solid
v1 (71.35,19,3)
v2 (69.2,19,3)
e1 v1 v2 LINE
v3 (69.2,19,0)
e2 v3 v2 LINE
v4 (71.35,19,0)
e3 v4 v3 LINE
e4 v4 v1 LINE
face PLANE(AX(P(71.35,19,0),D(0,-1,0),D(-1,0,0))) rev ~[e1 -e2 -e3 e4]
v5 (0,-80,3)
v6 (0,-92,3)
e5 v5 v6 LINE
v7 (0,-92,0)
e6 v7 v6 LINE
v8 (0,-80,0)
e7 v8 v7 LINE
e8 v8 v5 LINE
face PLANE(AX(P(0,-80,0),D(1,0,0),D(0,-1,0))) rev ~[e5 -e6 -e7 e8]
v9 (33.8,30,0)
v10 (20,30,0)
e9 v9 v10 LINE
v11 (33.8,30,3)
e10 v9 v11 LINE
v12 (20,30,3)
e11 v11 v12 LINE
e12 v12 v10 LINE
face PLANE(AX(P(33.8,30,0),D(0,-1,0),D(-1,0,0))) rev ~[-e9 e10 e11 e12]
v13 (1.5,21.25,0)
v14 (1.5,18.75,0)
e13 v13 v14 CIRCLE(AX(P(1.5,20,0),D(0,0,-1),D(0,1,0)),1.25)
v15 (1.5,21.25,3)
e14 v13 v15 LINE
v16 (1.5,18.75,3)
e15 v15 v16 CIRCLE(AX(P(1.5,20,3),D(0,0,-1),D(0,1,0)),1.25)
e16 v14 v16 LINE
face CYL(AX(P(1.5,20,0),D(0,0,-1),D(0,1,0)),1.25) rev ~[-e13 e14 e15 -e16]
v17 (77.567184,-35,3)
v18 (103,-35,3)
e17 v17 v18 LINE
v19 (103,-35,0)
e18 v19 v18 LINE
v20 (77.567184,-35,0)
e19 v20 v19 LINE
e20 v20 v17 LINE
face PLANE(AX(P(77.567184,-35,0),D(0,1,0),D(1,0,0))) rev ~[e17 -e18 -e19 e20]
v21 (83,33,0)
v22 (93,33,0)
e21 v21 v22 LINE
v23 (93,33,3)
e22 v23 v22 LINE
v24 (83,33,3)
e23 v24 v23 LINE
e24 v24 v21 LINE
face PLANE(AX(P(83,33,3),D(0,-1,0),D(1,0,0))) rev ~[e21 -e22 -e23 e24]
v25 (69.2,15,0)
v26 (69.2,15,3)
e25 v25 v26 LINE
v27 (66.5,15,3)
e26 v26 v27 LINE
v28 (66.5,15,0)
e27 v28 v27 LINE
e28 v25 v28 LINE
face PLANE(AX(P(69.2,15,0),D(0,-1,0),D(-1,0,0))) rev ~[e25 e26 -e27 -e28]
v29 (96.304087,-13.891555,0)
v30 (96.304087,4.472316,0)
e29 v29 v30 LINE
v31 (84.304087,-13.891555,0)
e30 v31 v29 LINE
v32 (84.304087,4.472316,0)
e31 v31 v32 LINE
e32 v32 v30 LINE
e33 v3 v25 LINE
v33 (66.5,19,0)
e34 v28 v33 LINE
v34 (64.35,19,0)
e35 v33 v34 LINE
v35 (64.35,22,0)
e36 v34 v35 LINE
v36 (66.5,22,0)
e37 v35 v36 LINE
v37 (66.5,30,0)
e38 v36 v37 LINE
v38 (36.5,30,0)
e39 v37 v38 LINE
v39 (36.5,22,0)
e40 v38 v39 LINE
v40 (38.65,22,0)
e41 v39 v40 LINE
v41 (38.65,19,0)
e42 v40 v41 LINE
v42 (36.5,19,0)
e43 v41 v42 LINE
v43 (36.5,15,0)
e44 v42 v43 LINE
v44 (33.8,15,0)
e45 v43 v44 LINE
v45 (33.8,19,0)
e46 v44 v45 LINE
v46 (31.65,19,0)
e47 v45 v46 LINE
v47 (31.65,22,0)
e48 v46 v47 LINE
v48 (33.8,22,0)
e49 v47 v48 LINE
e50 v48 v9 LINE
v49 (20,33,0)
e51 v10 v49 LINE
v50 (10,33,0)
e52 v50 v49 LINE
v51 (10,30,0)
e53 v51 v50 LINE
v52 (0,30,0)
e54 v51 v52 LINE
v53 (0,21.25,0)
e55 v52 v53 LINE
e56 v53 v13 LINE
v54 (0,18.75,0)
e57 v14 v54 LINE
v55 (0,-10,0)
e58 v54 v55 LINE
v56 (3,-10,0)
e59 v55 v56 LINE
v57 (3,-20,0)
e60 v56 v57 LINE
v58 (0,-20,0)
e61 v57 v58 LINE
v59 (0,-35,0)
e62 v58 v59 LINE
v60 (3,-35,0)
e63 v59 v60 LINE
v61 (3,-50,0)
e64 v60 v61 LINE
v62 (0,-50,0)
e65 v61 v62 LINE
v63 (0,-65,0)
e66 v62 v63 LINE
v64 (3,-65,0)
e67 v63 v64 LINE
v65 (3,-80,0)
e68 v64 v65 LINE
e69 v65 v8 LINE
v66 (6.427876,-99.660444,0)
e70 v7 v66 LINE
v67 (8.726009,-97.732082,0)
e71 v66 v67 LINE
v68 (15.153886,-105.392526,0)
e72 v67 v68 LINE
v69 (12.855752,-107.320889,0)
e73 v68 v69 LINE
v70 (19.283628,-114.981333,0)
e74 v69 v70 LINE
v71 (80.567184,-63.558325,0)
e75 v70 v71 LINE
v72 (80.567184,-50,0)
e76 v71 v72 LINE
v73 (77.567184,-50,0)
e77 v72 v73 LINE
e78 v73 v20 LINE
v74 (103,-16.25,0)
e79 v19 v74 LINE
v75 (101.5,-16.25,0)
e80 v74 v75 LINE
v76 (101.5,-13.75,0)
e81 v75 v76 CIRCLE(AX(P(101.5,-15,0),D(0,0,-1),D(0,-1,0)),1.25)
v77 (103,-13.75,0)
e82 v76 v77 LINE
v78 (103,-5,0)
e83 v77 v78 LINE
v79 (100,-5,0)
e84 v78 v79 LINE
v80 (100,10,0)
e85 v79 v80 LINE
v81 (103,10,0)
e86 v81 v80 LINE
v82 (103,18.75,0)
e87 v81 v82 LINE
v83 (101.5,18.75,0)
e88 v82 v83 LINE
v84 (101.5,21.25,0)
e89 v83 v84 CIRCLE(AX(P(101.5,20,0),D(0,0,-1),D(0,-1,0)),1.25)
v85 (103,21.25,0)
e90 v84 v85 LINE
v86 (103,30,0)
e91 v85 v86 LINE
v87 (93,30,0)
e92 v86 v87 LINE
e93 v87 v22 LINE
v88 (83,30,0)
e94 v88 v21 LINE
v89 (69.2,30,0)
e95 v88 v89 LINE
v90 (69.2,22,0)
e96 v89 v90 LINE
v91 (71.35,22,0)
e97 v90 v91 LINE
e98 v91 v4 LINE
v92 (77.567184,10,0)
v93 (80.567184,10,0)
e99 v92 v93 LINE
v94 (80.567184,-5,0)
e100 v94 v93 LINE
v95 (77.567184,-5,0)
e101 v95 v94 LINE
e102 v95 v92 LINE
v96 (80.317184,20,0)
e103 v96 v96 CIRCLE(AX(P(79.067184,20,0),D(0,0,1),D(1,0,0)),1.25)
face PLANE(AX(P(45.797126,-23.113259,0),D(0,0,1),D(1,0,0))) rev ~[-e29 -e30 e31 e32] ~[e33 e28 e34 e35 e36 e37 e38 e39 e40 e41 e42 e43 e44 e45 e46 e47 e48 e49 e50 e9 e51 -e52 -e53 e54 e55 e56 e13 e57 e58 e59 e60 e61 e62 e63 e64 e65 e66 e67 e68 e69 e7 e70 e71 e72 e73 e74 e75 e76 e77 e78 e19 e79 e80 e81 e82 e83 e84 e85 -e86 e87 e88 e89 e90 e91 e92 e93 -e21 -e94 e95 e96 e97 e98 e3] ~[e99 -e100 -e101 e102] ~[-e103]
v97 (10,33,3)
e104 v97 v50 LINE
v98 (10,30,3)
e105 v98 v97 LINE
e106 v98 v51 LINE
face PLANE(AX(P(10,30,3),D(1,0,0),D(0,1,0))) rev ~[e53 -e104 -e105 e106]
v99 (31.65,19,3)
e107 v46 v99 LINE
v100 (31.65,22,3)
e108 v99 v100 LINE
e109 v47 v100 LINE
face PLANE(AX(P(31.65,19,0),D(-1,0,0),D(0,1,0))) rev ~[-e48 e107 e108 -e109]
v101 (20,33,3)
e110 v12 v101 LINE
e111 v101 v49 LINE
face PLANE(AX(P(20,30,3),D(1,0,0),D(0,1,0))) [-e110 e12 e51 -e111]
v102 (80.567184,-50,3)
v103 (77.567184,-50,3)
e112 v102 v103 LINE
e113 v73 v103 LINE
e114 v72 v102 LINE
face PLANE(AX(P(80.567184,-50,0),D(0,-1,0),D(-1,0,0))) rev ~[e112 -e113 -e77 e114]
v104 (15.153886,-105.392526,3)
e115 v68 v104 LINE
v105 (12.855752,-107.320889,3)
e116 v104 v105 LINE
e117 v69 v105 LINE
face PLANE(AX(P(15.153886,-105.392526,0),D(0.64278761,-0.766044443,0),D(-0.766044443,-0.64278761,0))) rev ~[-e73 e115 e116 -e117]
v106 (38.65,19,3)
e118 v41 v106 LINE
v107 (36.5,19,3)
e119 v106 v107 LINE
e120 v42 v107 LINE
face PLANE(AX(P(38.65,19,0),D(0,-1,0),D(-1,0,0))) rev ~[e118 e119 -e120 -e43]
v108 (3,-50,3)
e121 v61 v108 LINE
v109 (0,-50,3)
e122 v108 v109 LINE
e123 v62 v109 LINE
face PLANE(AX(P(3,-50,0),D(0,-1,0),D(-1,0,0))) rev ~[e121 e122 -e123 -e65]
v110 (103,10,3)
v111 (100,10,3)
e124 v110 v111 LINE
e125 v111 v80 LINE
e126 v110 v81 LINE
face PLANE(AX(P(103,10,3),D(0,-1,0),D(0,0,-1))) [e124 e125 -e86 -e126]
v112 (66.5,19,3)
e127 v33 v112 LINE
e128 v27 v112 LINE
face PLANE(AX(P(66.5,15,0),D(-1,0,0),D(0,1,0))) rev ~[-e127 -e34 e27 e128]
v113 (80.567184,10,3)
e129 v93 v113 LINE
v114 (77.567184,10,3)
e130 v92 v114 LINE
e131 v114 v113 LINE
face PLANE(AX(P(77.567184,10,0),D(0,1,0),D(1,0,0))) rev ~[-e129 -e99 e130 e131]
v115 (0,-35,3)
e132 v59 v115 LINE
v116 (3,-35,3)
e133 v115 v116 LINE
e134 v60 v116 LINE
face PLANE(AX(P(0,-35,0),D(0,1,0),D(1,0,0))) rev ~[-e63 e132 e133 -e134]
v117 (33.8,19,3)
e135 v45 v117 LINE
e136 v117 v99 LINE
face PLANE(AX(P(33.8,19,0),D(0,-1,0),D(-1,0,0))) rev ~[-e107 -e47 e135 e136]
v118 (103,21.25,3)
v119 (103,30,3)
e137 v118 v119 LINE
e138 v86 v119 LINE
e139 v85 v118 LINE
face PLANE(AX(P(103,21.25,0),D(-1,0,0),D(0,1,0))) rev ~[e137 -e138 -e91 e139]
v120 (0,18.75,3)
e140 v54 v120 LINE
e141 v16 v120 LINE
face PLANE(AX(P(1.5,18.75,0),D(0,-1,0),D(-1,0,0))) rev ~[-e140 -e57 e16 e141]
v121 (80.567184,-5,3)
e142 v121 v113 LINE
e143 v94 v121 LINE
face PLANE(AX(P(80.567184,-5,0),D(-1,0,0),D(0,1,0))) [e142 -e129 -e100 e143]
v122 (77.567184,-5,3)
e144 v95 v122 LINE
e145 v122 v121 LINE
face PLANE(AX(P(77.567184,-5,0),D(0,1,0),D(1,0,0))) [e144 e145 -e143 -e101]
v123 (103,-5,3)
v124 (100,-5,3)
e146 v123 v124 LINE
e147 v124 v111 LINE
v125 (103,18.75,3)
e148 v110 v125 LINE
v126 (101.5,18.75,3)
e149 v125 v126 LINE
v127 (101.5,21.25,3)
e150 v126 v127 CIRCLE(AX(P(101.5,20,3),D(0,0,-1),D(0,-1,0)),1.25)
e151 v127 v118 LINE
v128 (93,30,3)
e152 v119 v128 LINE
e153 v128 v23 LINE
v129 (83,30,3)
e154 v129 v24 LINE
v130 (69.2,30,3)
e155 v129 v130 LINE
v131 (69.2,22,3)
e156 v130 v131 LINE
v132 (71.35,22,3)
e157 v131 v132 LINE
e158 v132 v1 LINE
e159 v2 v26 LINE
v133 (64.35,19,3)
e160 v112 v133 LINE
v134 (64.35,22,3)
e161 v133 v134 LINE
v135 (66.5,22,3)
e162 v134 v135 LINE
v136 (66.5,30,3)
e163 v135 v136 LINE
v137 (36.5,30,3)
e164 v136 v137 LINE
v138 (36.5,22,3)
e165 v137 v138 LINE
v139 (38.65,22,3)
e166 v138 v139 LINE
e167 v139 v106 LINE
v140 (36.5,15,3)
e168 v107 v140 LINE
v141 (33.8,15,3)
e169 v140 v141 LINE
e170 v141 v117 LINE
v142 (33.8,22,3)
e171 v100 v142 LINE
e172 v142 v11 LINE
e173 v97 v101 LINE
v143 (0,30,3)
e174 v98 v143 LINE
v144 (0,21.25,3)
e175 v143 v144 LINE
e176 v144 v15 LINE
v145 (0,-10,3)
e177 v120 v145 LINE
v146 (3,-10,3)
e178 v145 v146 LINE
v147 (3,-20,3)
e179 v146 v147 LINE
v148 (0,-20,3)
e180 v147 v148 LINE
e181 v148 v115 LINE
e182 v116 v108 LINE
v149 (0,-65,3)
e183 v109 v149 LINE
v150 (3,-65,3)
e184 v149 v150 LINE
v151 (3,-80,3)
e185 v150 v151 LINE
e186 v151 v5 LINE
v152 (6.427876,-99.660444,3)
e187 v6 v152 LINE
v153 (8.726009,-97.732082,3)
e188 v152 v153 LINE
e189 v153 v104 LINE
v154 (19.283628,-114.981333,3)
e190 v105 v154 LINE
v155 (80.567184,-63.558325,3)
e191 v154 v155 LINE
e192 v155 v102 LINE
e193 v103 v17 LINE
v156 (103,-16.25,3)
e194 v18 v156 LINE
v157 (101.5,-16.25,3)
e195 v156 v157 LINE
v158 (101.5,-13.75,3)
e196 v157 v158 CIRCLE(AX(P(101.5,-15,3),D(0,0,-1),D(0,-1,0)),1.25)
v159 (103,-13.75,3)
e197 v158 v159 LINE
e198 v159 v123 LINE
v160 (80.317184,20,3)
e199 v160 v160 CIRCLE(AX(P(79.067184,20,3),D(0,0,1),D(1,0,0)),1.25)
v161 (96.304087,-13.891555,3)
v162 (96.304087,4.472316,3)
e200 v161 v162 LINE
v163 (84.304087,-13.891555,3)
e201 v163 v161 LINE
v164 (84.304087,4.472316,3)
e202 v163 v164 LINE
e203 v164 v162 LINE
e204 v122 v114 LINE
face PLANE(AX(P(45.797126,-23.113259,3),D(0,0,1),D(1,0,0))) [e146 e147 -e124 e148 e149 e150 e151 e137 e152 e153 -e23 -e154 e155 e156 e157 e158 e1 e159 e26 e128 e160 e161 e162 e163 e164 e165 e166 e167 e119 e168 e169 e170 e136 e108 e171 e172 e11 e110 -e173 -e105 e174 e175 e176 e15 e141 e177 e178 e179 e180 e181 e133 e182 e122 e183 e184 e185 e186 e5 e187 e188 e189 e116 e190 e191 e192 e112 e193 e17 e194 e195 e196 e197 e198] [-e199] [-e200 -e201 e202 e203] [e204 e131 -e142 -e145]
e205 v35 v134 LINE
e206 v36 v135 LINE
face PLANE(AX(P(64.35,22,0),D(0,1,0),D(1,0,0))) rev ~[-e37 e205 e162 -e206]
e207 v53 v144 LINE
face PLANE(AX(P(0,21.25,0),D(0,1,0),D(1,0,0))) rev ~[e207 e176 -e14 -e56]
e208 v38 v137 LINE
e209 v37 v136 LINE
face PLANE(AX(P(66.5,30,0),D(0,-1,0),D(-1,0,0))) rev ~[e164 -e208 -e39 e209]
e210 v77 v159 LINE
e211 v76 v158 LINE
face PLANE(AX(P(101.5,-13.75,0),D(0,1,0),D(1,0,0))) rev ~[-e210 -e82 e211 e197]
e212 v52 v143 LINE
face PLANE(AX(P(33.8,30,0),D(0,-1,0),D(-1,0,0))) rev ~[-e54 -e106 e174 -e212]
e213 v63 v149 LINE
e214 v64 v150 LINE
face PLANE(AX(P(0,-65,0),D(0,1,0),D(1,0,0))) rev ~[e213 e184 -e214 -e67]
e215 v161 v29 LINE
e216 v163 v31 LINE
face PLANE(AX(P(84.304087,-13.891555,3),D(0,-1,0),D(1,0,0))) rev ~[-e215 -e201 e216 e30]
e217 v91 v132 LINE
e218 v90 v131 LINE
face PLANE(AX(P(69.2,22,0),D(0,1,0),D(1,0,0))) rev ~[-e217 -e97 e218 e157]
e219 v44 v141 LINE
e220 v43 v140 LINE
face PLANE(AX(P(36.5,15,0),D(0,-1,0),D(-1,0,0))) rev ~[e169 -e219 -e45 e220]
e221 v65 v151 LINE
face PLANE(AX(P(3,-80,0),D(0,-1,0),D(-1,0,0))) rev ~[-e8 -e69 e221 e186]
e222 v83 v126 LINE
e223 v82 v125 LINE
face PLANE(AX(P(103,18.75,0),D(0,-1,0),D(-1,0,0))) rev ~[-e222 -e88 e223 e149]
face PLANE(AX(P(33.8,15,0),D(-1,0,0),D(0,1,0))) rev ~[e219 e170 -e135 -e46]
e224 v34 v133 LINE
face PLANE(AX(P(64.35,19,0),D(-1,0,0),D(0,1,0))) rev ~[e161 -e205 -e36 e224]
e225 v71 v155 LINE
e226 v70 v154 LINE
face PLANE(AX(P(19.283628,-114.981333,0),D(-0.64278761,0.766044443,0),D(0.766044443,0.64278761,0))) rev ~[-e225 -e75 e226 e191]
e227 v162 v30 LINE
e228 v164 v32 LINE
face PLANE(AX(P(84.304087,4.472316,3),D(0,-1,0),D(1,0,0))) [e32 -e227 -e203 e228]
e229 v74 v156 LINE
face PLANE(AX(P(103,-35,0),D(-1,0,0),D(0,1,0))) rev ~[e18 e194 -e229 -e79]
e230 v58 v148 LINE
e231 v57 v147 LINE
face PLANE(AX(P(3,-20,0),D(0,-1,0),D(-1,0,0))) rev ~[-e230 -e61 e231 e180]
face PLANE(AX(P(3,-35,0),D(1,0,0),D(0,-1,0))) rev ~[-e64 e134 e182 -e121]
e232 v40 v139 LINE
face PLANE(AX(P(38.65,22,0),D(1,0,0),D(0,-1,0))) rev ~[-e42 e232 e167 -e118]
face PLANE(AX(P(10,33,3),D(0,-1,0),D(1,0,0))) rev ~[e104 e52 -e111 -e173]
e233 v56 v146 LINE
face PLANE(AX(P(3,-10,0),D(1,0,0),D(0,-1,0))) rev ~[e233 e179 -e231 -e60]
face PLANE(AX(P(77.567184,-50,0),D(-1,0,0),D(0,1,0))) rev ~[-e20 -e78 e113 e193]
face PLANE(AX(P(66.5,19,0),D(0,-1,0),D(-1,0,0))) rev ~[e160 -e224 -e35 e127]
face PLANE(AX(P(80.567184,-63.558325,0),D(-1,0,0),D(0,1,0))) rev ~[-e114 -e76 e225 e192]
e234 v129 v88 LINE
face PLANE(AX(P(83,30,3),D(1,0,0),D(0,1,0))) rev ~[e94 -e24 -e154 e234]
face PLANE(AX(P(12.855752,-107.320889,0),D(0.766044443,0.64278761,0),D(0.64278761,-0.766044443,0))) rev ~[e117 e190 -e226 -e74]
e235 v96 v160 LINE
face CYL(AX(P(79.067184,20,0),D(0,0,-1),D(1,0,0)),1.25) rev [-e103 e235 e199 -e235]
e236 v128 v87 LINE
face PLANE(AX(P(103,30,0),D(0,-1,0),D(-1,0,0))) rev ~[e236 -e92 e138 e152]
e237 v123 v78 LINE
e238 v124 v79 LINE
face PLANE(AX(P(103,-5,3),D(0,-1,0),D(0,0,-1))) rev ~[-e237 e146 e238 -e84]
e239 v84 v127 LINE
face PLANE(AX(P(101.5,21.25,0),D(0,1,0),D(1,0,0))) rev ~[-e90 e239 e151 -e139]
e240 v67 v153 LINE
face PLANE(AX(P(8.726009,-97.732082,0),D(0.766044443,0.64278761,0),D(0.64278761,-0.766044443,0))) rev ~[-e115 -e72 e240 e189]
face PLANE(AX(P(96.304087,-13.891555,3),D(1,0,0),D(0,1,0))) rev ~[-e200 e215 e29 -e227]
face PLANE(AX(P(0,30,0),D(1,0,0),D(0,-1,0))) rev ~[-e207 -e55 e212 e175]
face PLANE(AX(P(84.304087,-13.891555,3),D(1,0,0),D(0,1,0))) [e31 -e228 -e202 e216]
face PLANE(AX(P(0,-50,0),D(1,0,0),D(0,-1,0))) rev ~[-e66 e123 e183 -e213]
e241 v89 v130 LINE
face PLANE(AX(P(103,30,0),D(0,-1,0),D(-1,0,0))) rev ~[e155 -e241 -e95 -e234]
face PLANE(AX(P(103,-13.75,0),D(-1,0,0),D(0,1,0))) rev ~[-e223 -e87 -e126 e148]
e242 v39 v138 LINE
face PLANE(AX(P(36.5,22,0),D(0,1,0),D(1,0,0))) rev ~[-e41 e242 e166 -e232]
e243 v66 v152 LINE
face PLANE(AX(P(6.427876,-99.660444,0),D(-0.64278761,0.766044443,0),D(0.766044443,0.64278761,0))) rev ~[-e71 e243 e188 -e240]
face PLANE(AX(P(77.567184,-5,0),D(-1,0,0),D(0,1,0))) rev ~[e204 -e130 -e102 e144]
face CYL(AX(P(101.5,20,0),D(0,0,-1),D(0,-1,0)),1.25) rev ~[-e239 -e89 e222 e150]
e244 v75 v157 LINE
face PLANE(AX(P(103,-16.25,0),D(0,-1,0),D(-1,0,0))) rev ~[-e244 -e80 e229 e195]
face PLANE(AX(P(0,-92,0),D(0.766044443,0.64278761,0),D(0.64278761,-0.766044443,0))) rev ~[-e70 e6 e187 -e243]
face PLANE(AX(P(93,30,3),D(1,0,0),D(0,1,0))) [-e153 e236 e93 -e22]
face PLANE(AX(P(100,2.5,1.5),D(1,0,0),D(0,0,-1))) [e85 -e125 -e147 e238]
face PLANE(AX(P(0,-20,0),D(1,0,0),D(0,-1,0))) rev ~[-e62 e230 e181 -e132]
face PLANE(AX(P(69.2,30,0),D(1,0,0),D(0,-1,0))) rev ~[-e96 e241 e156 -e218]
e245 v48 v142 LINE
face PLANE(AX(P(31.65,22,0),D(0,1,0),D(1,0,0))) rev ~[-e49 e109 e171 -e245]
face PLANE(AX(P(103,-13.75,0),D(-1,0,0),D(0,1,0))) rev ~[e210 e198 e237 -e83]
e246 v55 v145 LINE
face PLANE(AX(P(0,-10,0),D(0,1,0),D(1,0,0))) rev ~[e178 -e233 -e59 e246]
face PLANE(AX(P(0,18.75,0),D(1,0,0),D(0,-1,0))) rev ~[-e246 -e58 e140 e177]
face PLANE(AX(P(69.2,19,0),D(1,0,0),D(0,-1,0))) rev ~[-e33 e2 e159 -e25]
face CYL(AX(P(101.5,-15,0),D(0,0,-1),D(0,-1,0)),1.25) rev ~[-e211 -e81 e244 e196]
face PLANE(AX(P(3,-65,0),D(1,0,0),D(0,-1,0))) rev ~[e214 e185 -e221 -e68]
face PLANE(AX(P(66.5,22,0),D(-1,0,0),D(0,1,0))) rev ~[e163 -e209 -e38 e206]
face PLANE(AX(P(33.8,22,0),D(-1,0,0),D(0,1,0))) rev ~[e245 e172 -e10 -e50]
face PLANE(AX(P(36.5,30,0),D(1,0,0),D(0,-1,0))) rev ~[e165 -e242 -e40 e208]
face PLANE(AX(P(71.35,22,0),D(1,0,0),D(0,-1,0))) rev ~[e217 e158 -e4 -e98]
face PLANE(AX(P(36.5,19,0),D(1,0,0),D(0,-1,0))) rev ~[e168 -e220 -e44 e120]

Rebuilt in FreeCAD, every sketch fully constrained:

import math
import FreeCAD as App
import Part
import Sketcher
from FreeCAD import Vector
Q = App.Units.Quantity


def add_polygon(sketch, points):
    """Adds a closed chain of lines whose ends are joined by coincident constraints."""
    first, n = sketch.GeometryCount, len(points)
    for a, b in zip(points, points[1:] + points[:1]):
        sketch.addGeometry(Part.LineSegment(App.Vector(*a, 0), App.Vector(*b, 0)), False)
    for i in range(n):
        sketch.addConstraint(Sketcher.Constraint("Coincident", first + i, 2, first + (i + 1) % n, 1))

doc = App.newDocument("Part")
body = doc.addObject("PartDesign::Body", "Body")

# Sketch on XY plane
sketch1 = doc.addObject("Sketcher::SketchObject", "Sketch")
body.addObject(sketch1)
sketch1.AttachmentSupport = (doc.XY_Plane, [""])
sketch1.MapMode = "FlatFace"
sketch1.addGeometry(Part.LineSegment(Vector(103, 21.25, 0), Vector(103, 30, 0)), False)  # 0
sketch1.addGeometry(Part.LineSegment(Vector(103, 30, 0), Vector(69.2, 30, 0)), False)  # 1
sketch1.addGeometry(Part.LineSegment(Vector(69.2, 30, 0), Vector(69.2, 22, 0)), False)  # 2
sketch1.addGeometry(Part.LineSegment(Vector(69.2, 22, 0), Vector(71.35, 22, 0)), False)  # 3
sketch1.addGeometry(Part.LineSegment(Vector(71.35, 22, 0), Vector(71.35, 19, 0)), False)  # 4
sketch1.addGeometry(Part.LineSegment(Vector(71.35, 19, 0), Vector(69.2, 19, 0)), False)  # 5
sketch1.addGeometry(Part.LineSegment(Vector(69.2, 19, 0), Vector(69.2, 15, 0)), False)  # 6
sketch1.addGeometry(Part.LineSegment(Vector(69.2, 15, 0), Vector(66.5, 15, 0)), False)  # 7
sketch1.addGeometry(Part.LineSegment(Vector(66.5, 15, 0), Vector(66.5, 19, 0)), False)  # 8
sketch1.addGeometry(Part.LineSegment(Vector(66.5, 19, 0), Vector(64.35, 19, 0)), False)  # 9
sketch1.addGeometry(Part.LineSegment(Vector(64.35, 19, 0), Vector(64.35, 22, 0)), False)  # 10
sketch1.addGeometry(Part.LineSegment(Vector(64.35, 22, 0), Vector(66.5, 22, 0)), False)  # 11
sketch1.addGeometry(Part.LineSegment(Vector(66.5, 22, 0), Vector(66.5, 30, 0)), False)  # 12
sketch1.addGeometry(Part.LineSegment(Vector(66.5, 30, 0), Vector(36.5, 30, 0)), False)  # 13
sketch1.addGeometry(Part.LineSegment(Vector(36.5, 30, 0), Vector(36.5, 22, 0)), False)  # 14
sketch1.addGeometry(Part.LineSegment(Vector(36.5, 22, 0), Vector(38.65, 22, 0)), False)  # 15
sketch1.addGeometry(Part.LineSegment(Vector(38.65, 22, 0), Vector(38.65, 19, 0)), False)  # 16
sketch1.addGeometry(Part.LineSegment(Vector(38.65, 19, 0), Vector(36.5, 19, 0)), False)  # 17
sketch1.addGeometry(Part.LineSegment(Vector(36.5, 19, 0), Vector(36.5, 15, 0)), False)  # 18
sketch1.addGeometry(Part.LineSegment(Vector(36.5, 15, 0), Vector(33.8, 15, 0)), False)  # 19
sketch1.addGeometry(Part.LineSegment(Vector(33.8, 15, 0), Vector(33.8, 19, 0)), False)  # 20
sketch1.addGeometry(Part.LineSegment(Vector(33.8, 19, 0), Vector(31.65, 19, 0)), False)  # 21
sketch1.addGeometry(Part.LineSegment(Vector(31.65, 19, 0), Vector(31.65, 22, 0)), False)  # 22
sketch1.addGeometry(Part.LineSegment(Vector(31.65, 22, 0), Vector(33.8, 22, 0)), False)  # 23
sketch1.addGeometry(Part.LineSegment(Vector(33.8, 22, 0), Vector(33.8, 30, 0)), False)  # 24
sketch1.addGeometry(Part.LineSegment(Vector(33.8, 30, 0), Vector(0, 30, 0)), False)  # 25
sketch1.addGeometry(Part.LineSegment(Vector(0, 30, 0), Vector(0, 21.25, 0)), False)  # 26
sketch1.addGeometry(Part.LineSegment(Vector(0, 21.25, 0), Vector(1.5, 21.25, 0)), False)  # 27
sketch1.addGeometry(Part.ArcOfCircle(Part.Circle(Vector(1.5, 20, 0), Vector(0, 0, 1), 1.25), math.radians(-90), math.radians(90)), False)  # 28
sketch1.addGeometry(Part.LineSegment(Vector(1.5, 18.75, 0), Vector(0, 18.75, 0)), False)  # 29
sketch1.addGeometry(Part.LineSegment(Vector(0, 18.75, 0), Vector(0, -10, 0)), False)  # 30
sketch1.addGeometry(Part.LineSegment(Vector(0, -10, 0), Vector(3, -10, 0)), False)  # 31
sketch1.addGeometry(Part.LineSegment(Vector(3, -10, 0), Vector(3, -20, 0)), False)  # 32
sketch1.addGeometry(Part.LineSegment(Vector(3, -20, 0), Vector(0, -20, 0)), False)  # 33
sketch1.addGeometry(Part.LineSegment(Vector(0, -20, 0), Vector(0, -35, 0)), False)  # 34
sketch1.addGeometry(Part.LineSegment(Vector(0, -35, 0), Vector(3, -35, 0)), False)  # 35
sketch1.addGeometry(Part.LineSegment(Vector(3, -35, 0), Vector(3, -50, 0)), False)  # 36
sketch1.addGeometry(Part.LineSegment(Vector(3, -50, 0), Vector(0, -50, 0)), False)  # 37
sketch1.addGeometry(Part.LineSegment(Vector(0, -50, 0), Vector(0, -65, 0)), False)  # 38
sketch1.addGeometry(Part.LineSegment(Vector(0, -65, 0), Vector(3, -65, 0)), False)  # 39
sketch1.addGeometry(Part.LineSegment(Vector(3, -65, 0), Vector(3, -80, 0)), False)  # 40
sketch1.addGeometry(Part.LineSegment(Vector(3, -80, 0), Vector(0, -80, 0)), False)  # 41
sketch1.addGeometry(Part.LineSegment(Vector(0, -80, 0), Vector(0, -92, 0)), False)  # 42
sketch1.addGeometry(Part.LineSegment(Vector(0, -92, 0), Vector(6.427876, -99.660444, 0)), False)  # 43
sketch1.addGeometry(Part.LineSegment(Vector(6.427876, -99.660444, 0), Vector(8.726009, -97.732082, 0)), False)  # 44
sketch1.addGeometry(Part.LineSegment(Vector(8.726009, -97.732082, 0), Vector(15.153886, -105.392526, 0)), False)  # 45
sketch1.addGeometry(Part.LineSegment(Vector(15.153886, -105.392526, 0), Vector(12.855752, -107.320889, 0)), False)  # 46
sketch1.addGeometry(Part.LineSegment(Vector(12.855752, -107.320889, 0), Vector(19.283628, -114.981333, 0)), False)  # 47
sketch1.addGeometry(Part.LineSegment(Vector(19.283628, -114.981333, 0), Vector(80.567184, -63.558325, 0)), False)  # 48
sketch1.addGeometry(Part.LineSegment(Vector(80.567184, -63.558325, 0), Vector(80.567184, -50, 0)), False)  # 49
sketch1.addGeometry(Part.LineSegment(Vector(80.567184, -50, 0), Vector(77.567184, -50, 0)), False)  # 50
sketch1.addGeometry(Part.LineSegment(Vector(77.567184, -50, 0), Vector(77.567184, -35, 0)), False)  # 51
sketch1.addGeometry(Part.LineSegment(Vector(77.567184, -35, 0), Vector(103, -35, 0)), False)  # 52
sketch1.addGeometry(Part.LineSegment(Vector(103, -35, 0), Vector(103, -16.25, 0)), False)  # 53
sketch1.addGeometry(Part.LineSegment(Vector(103, -16.25, 0), Vector(101.5, -16.25, 0)), False)  # 54
sketch1.addGeometry(Part.ArcOfCircle(Part.Circle(Vector(101.5, -15, 0), Vector(0, 0, 1), 1.25), math.radians(90), math.radians(270)), False)  # 55
sketch1.addGeometry(Part.LineSegment(Vector(101.5, -13.75, 0), Vector(103, -13.75, 0)), False)  # 56
sketch1.addGeometry(Part.LineSegment(Vector(103, -13.75, 0), Vector(103, 18.75, 0)), False)  # 57
sketch1.addGeometry(Part.LineSegment(Vector(103, 18.75, 0), Vector(101.5, 18.75, 0)), False)  # 58
sketch1.addGeometry(Part.ArcOfCircle(Part.Circle(Vector(101.5, 20, 0), Vector(0, 0, 1), 1.25), math.radians(90), math.radians(270)), False)  # 59
sketch1.addGeometry(Part.LineSegment(Vector(101.5, 21.25, 0), Vector(103, 21.25, 0)), False)  # 60
add_polygon(sketch1, [(80.567184, -5), (77.567184, -5), (77.567184, 10), (80.567184, 10)])  # lines 61-64
sketch1.addGeometry(Part.Circle(Vector(79.067184, 20, 0), Vector(0, 0, 1), 1.25), False)  # 65
sketch1.addConstraint(Sketcher.Constraint("Coincident", 0, 2, 1, 1))
sketch1.addConstraint(Sketcher.Constraint("Coincident", 1, 2, 2, 1))
sketch1.addConstraint(Sketcher.Constraint("Coincident", 2, 2, 3, 1))
sketch1.addConstraint(Sketcher.Constraint("Coincident", 3, 2, 4, 1))
sketch1.addConstraint(Sketcher.Constraint("Coincident", 4, 2, 5, 1))
sketch1.addConstraint(Sketcher.Constraint("Coincident", 5, 2, 6, 1))
sketch1.addConstraint(Sketcher.Constraint("Coincident", 6, 2, 7, 1))
sketch1.addConstraint(Sketcher.Constraint("Coincident", 7, 2, 8, 1))
sketch1.addConstraint(Sketcher.Constraint("Coincident", 8, 2, 9, 1))
sketch1.addConstraint(Sketcher.Constraint("Coincident", 9, 2, 10, 1))
sketch1.addConstraint(Sketcher.Constraint("Coincident", 10, 2, 11, 1))
sketch1.addConstraint(Sketcher.Constraint("Coincident", 11, 2, 12, 1))
sketch1.addConstraint(Sketcher.Constraint("Coincident", 12, 2, 13, 1))
sketch1.addConstraint(Sketcher.Constraint("Coincident", 13, 2, 14, 1))
sketch1.addConstraint(Sketcher.Constraint("Coincident", 14, 2, 15, 1))
sketch1.addConstraint(Sketcher.Constraint("Coincident", 15, 2, 16, 1))
sketch1.addConstraint(Sketcher.Constraint("Coincident", 16, 2, 17, 1))
sketch1.addConstraint(Sketcher.Constraint("Coincident", 17, 2, 18, 1))
sketch1.addConstraint(Sketcher.Constraint("Coincident", 18, 2, 19, 1))
sketch1.addConstraint(Sketcher.Constraint("Coincident", 19, 2, 20, 1))
sketch1.addConstraint(Sketcher.Constraint("Coincident", 20, 2, 21, 1))
sketch1.addConstraint(Sketcher.Constraint("Coincident", 21, 2, 22, 1))
sketch1.addConstraint(Sketcher.Constraint("Coincident", 22, 2, 23, 1))
sketch1.addConstraint(Sketcher.Constraint("Coincident", 23, 2, 24, 1))
sketch1.addConstraint(Sketcher.Constraint("Coincident", 24, 2, 25, 1))
sketch1.addConstraint(Sketcher.Constraint("Coincident", 25, 2, 26, 1))
sketch1.addConstraint(Sketcher.Constraint("Coincident", 26, 2, 27, 1))
sketch1.addConstraint(Sketcher.Constraint("Tangent", 27, 2, 28, 2))
sketch1.addConstraint(Sketcher.Constraint("Tangent", 28, 1, 29, 1))
sketch1.addConstraint(Sketcher.Constraint("Coincident", 29, 2, 30, 1))
sketch1.addConstraint(Sketcher.Constraint("Coincident", 30, 2, 31, 1))
sketch1.addConstraint(Sketcher.Constraint("Coincident", 31, 2, 32, 1))
sketch1.addConstraint(Sketcher.Constraint("Coincident", 32, 2, 33, 1))
sketch1.addConstraint(Sketcher.Constraint("Coincident", 33, 2, 34, 1))
sketch1.addConstraint(Sketcher.Constraint("Coincident", 34, 2, 35, 1))
sketch1.addConstraint(Sketcher.Constraint("Coincident", 35, 2, 36, 1))
sketch1.addConstraint(Sketcher.Constraint("Coincident", 36, 2, 37, 1))
sketch1.addConstraint(Sketcher.Constraint("Coincident", 37, 2, 38, 1))
sketch1.addConstraint(Sketcher.Constraint("Coincident", 38, 2, 39, 1))
sketch1.addConstraint(Sketcher.Constraint("Coincident", 39, 2, 40, 1))
sketch1.addConstraint(Sketcher.Constraint("Coincident", 40, 2, 41, 1))
sketch1.addConstraint(Sketcher.Constraint("Coincident", 41, 2, 42, 1))
sketch1.addConstraint(Sketcher.Constraint("Coincident", 42, 2, 43, 1))
sketch1.addConstraint(Sketcher.Constraint("Coincident", 43, 2, 44, 1))
sketch1.addConstraint(Sketcher.Constraint("Coincident", 44, 2, 45, 1))
sketch1.addConstraint(Sketcher.Constraint("Coincident", 45, 2, 46, 1))
sketch1.addConstraint(Sketcher.Constraint("Coincident", 46, 2, 47, 1))
sketch1.addConstraint(Sketcher.Constraint("Coincident", 47, 2, 48, 1))
sketch1.addConstraint(Sketcher.Constraint("Coincident", 48, 2, 49, 1))
sketch1.addConstraint(Sketcher.Constraint("Coincident", 49, 2, 50, 1))
sketch1.addConstraint(Sketcher.Constraint("Coincident", 50, 2, 51, 1))
sketch1.addConstraint(Sketcher.Constraint("Coincident", 51, 2, 52, 1))
sketch1.addConstraint(Sketcher.Constraint("Coincident", 52, 2, 53, 1))
sketch1.addConstraint(Sketcher.Constraint("Coincident", 53, 2, 54, 1))
sketch1.addConstraint(Sketcher.Constraint("Tangent", 54, 2, 55, 2))
sketch1.addConstraint(Sketcher.Constraint("Tangent", 55, 1, 56, 1))
sketch1.addConstraint(Sketcher.Constraint("Coincident", 56, 2, 57, 1))
sketch1.addConstraint(Sketcher.Constraint("Coincident", 57, 2, 58, 1))
sketch1.addConstraint(Sketcher.Constraint("Tangent", 58, 2, 59, 2))
sketch1.addConstraint(Sketcher.Constraint("Tangent", 59, 1, 60, 1))
sketch1.addConstraint(Sketcher.Constraint("Coincident", 60, 2, 0, 1))
sketch1.addConstraint(Sketcher.Constraint("Vertical", 0))
sketch1.addConstraint(Sketcher.Constraint("Horizontal", 1))
sketch1.addConstraint(Sketcher.Constraint("Vertical", 2))
sketch1.addConstraint(Sketcher.Constraint("Horizontal", 3))
sketch1.addConstraint(Sketcher.Constraint("Vertical", 4))
sketch1.addConstraint(Sketcher.Constraint("Horizontal", 5))
sketch1.addConstraint(Sketcher.Constraint("Vertical", 6))
sketch1.addConstraint(Sketcher.Constraint("Horizontal", 7))
sketch1.addConstraint(Sketcher.Constraint("Vertical", 8))
sketch1.addConstraint(Sketcher.Constraint("Horizontal", 9))
sketch1.addConstraint(Sketcher.Constraint("Vertical", 10))
sketch1.addConstraint(Sketcher.Constraint("Horizontal", 11))
sketch1.addConstraint(Sketcher.Constraint("Vertical", 12))
sketch1.addConstraint(Sketcher.Constraint("Horizontal", 13))
sketch1.addConstraint(Sketcher.Constraint("Vertical", 14))
sketch1.addConstraint(Sketcher.Constraint("Horizontal", 15))
sketch1.addConstraint(Sketcher.Constraint("Vertical", 16))
sketch1.addConstraint(Sketcher.Constraint("Horizontal", 17))
sketch1.addConstraint(Sketcher.Constraint("Vertical", 18))
sketch1.addConstraint(Sketcher.Constraint("Horizontal", 19))
sketch1.addConstraint(Sketcher.Constraint("Vertical", 20))
sketch1.addConstraint(Sketcher.Constraint("Horizontal", 21))
sketch1.addConstraint(Sketcher.Constraint("Vertical", 22))
sketch1.addConstraint(Sketcher.Constraint("Horizontal", 23))
sketch1.addConstraint(Sketcher.Constraint("Vertical", 24))
sketch1.addConstraint(Sketcher.Constraint("Horizontal", 25))
sketch1.addConstraint(Sketcher.Constraint("Vertical", 26))
sketch1.addConstraint(Sketcher.Constraint("Horizontal", 27))
sketch1.addConstraint(Sketcher.Constraint("Horizontal", 29))
sketch1.addConstraint(Sketcher.Constraint("Vertical", 30))
sketch1.addConstraint(Sketcher.Constraint("Horizontal", 31))
sketch1.addConstraint(Sketcher.Constraint("Vertical", 32))
sketch1.addConstraint(Sketcher.Constraint("Horizontal", 33))
sketch1.addConstraint(Sketcher.Constraint("Vertical", 34))
sketch1.addConstraint(Sketcher.Constraint("Horizontal", 35))
sketch1.addConstraint(Sketcher.Constraint("Vertical", 36))
sketch1.addConstraint(Sketcher.Constraint("Horizontal", 37))
sketch1.addConstraint(Sketcher.Constraint("Vertical", 38))
sketch1.addConstraint(Sketcher.Constraint("Horizontal", 39))
sketch1.addConstraint(Sketcher.Constraint("Vertical", 40))
sketch1.addConstraint(Sketcher.Constraint("Horizontal", 41))
sketch1.addConstraint(Sketcher.Constraint("Vertical", 42))
sketch1.addConstraint(Sketcher.Constraint("Vertical", 49))
sketch1.addConstraint(Sketcher.Constraint("Horizontal", 50))
sketch1.addConstraint(Sketcher.Constraint("Vertical", 51))
sketch1.addConstraint(Sketcher.Constraint("Horizontal", 52))
sketch1.addConstraint(Sketcher.Constraint("Vertical", 53))
sketch1.addConstraint(Sketcher.Constraint("Horizontal", 54))
sketch1.addConstraint(Sketcher.Constraint("Horizontal", 56))
sketch1.addConstraint(Sketcher.Constraint("Vertical", 57))
sketch1.addConstraint(Sketcher.Constraint("Horizontal", 58))
sketch1.addConstraint(Sketcher.Constraint("Horizontal", 60))
sketch1.addConstraint(Sketcher.Constraint("Horizontal", 61))
sketch1.addConstraint(Sketcher.Constraint("Vertical", 62))
sketch1.addConstraint(Sketcher.Constraint("Horizontal", 63))
sketch1.addConstraint(Sketcher.Constraint("Vertical", 64))
sketch1.addConstraint(Sketcher.Constraint("Equal", 28, 55))
sketch1.addConstraint(Sketcher.Constraint("Equal", 55, 59))
sketch1.addConstraint(Sketcher.Constraint("Equal", 59, 65))
sketch1.addConstraint(Sketcher.Constraint("PointOnObject", 25, 2, -2))
sketch1.addConstraint(Sketcher.Constraint("PointOnObject", 29, 2, -2))
sketch1.addConstraint(Sketcher.Constraint("PointOnObject", 33, 2, -2))
sketch1.addConstraint(Sketcher.Constraint("PointOnObject", 37, 2, -2))
sketch1.addConstraint(Sketcher.Constraint("PointOnObject", 41, 2, -2))
sketch1.addConstraint(Sketcher.Constraint("Perpendicular", 43, 44))
sketch1.addConstraint(Sketcher.Constraint("Perpendicular", 44, 45))
sketch1.addConstraint(Sketcher.Constraint("Perpendicular", 45, 46))
sketch1.addConstraint(Sketcher.Constraint("Perpendicular", 46, 47))
sketch1.addConstraint(Sketcher.Constraint("Perpendicular", 47, 48))
sketch1.addConstraint(Sketcher.Constraint("Horizontal", 28, 3, 59, 3))
sketch1.addConstraint(Sketcher.Constraint("Horizontal", 59, 3, 65, 3))
sketch1.addConstraint(Sketcher.Constraint("Horizontal", 5, 2, 8, 2))
sketch1.addConstraint(Sketcher.Constraint("Horizontal", 3, 2, 10, 2))
sketch1.addConstraint(Sketcher.Constraint("Horizontal", 1, 2, 12, 2))
sketch1.addConstraint(Sketcher.Constraint("Horizontal", 11, 2, 14, 2))
sketch1.addConstraint(Sketcher.Constraint("Horizontal", 9, 2, 16, 2))
sketch1.addConstraint(Sketcher.Constraint("Horizontal", 7, 2, 18, 2))
sketch1.addConstraint(Sketcher.Constraint("Horizontal", 17, 2, 20, 2))
sketch1.addConstraint(Sketcher.Constraint("Horizontal", 15, 2, 22, 2))
sketch1.addConstraint(Sketcher.Constraint("Horizontal", 13, 2, 24, 2))
sketch1.addConstraint(Sketcher.Constraint("Horizontal", 37, 2, 49, 2))
sketch1.addConstraint(Sketcher.Constraint("Horizontal", 35, 2, 51, 2))
sketch1.addConstraint(Sketcher.Constraint("Vertical", 55, 3, 59, 3))
sketch1.addConstraint(Sketcher.Constraint("Vertical", 2, 2, 5, 2))
sketch1.addConstraint(Sketcher.Constraint("Vertical", 8, 2, 11, 2))
sketch1.addConstraint(Sketcher.Constraint("Vertical", 14, 2, 17, 2))
sketch1.addConstraint(Sketcher.Constraint("Vertical", 20, 2, 23, 2))
sketch1.addConstraint(Sketcher.Constraint("Vertical", 32, 2, 35, 2))
sketch1.addConstraint(Sketcher.Constraint("Vertical", 36, 2, 39, 2))
sketch1.addConstraint(Sketcher.Constraint("Vertical", 0, 2, 52, 2))
sketch1.addConstraint(Sketcher.Constraint("Vertical", 53, 2, 56, 2))
sketch1.addConstraint(Sketcher.Constraint("Vertical", 51, 2, 61, 2))
sketch1.addConstraint(Sketcher.Constraint("Vertical", 49, 2, 63, 2))
sketch1.addConstraint(Sketcher.Constraint("Equal", 5, 9))
sketch1.addConstraint(Sketcher.Constraint("Equal", 11, 15))
sketch1.addConstraint(Sketcher.Constraint("Equal", 7, 19))
sketch1.addConstraint(Sketcher.Constraint("Equal", 17, 21))
sketch1.addConstraint(Sketcher.Constraint("Equal", 1, 25))
sketch1.addConstraint(Sketcher.Constraint("Equal", 41, 50))
sketch1.addConstraint(Sketcher.Constraint("Equal", 29, 54))
sketch1.addConstraint(Sketcher.Constraint("Equal", 63, 4))
sketch1.addConstraint(Sketcher.Constraint("Equal", 34, 36))
sketch1.addConstraint(Sketcher.Constraint("Equal", 36, 38))
sketch1.addConstraint(Sketcher.Constraint("Equal", 38, 40))
sketch1.addConstraint(Sketcher.Constraint("Equal", 51, 62))
sketch1.addConstraint(Sketcher.Constraint("Equal", 43, 45))
sketch1.addConstraint(Sketcher.Constraint("Equal", 44, 46))
sketch1.addConstraint(Sketcher.Constraint("Equal", 45, 47))
sketch1.addConstraint(Sketcher.Constraint("Diameter", 65, Q("2.5 mm")))
sketch1.addConstraint(Sketcher.Constraint("DistanceX", 13, 2, 13, 1, Q("30 mm")))
sketch1.addConstraint(Sketcher.Constraint("DistanceX", 31, 1, 31, 2, Q("3 mm")))
sketch1.addConstraint(Sketcher.Constraint("DistanceY", 2, 2, 2, 1, Q("8 mm")))
sketch1.addConstraint(Sketcher.Constraint("DistanceY", 6, 2, 6, 1, Q("4 mm")))
sketch1.addConstraint(Sketcher.Constraint("DistanceY", 32, 2, 32, 1, Q("10 mm")))
sketch1.addConstraint(Sketcher.Constraint("DistanceY", 34, 2, 34, 1, Q("15 mm")))
sketch1.addConstraint(Sketcher.Constraint("DistanceY", 42, 2, 42, 1, Q("12 mm")))
sketch1.addConstraint(Sketcher.Constraint("Angle", 43, Q("-50 deg")))
sketch1.addConstraint(Sketcher.Constraint("Distance", 43, Q("10 mm")))
sketch1.addConstraint(Sketcher.Constraint("Distance", 44, Q("3 mm")))
sketch1.addConstraint(Sketcher.Constraint("Distance", 48, Q("80 mm")))
sketch1.addConstraint(Sketcher.Constraint("DistanceX", 1, 2, 1, 1, Q("33.8 mm")))
sketch1.addConstraint(Sketcher.Constraint("DistanceX", 7, 2, 7, 1, Q("2.7 mm")))
sketch1.addConstraint(Sketcher.Constraint("DistanceX", 27, 1, 27, 2, Q("1.5 mm")))
sketch1.addConstraint(Sketcher.Constraint("DistanceY", 57, 1, 57, 2, Q("32.5 mm")))
sketch1.addConstraint(Sketcher.Constraint("DistanceY", -1, 1, 28, 3, Q("20 mm")))
sketch1.addConstraint(Sketcher.Constraint("DistanceY", -1, 1, 0, 2, Q("30 mm")))
sketch1.addConstraint(Sketcher.Constraint("DistanceY", 30, 2, -1, 1, Q("10 mm")))
sketch1.addConstraint(Sketcher.Constraint("DistanceY", 61, 2, -1, 1, Q("5 mm")))
sketch1.addConstraint(Sketcher.Constraint("DistanceX", 3, 1, 3, 2, Q("2.15 mm")))
sketch1.addConstraint(Sketcher.Constraint("DistanceX", -1, 1, 65, 3, Q("79.067184 mm")))
pad1 = doc.addObject("PartDesign::Pad", "Pad")
body.addObject(pad1)
pad1.Profile = sketch1
pad1.Length = 3

# Sketch on YZ plane
sketch2 = doc.addObject("Sketcher::SketchObject", "Sketch001")
body.addObject(sketch2)
sketch2.AttachmentSupport = (doc.YZ_Plane, [""])
sketch2.MapMode = "FlatFace"
sketch2.AttachmentOffset = App.Placement(Vector(0, 0, 103), App.Rotation())
add_polygon(sketch2, [(10, 3), (-5, 3), (-5, 0), (10, 0)])  # lines 0-3
sketch2.addConstraint(Sketcher.Constraint("Horizontal", 0))
sketch2.addConstraint(Sketcher.Constraint("Vertical", 1))
sketch2.addConstraint(Sketcher.Constraint("Horizontal", 2))
sketch2.addConstraint(Sketcher.Constraint("Vertical", 3))
sketch2.addConstraint(Sketcher.Constraint("PointOnObject", 1, 2, -1))
sketch2.addConstraint(Sketcher.Constraint("DistanceX", 0, 2, 0, 1, Q("15 mm")))
sketch2.addConstraint(Sketcher.Constraint("DistanceY", 1, 2, 1, 1, Q("3 mm")))
sketch2.addConstraint(Sketcher.Constraint("DistanceX", 0, 2, -1, 1, Q("5 mm")))
pocket1 = doc.addObject("PartDesign::Pocket", "Pocket")
body.addObject(pocket1)
pocket1.Profile = sketch2
pocket1.Length = 3

# Sketch on XY plane
sketch3 = doc.addObject("Sketcher::SketchObject", "Sketch002")
body.addObject(sketch3)
sketch3.AttachmentSupport = (doc.XY_Plane, [""])
sketch3.MapMode = "FlatFace"
sketch3.AttachmentOffset = App.Placement(Vector(0, 0, 3), App.Rotation())
add_polygon(sketch3, [(10, 33), (10, 30), (20, 30), (20, 33)])  # lines 0-3
add_polygon(sketch3, [(83, 33), (83, 30), (93, 30), (93, 33)])  # lines 4-7
sketch3.addConstraint(Sketcher.Constraint("Vertical", 0))
sketch3.addConstraint(Sketcher.Constraint("Horizontal", 1))
sketch3.addConstraint(Sketcher.Constraint("Vertical", 2))
sketch3.addConstraint(Sketcher.Constraint("Horizontal", 3))
sketch3.addConstraint(Sketcher.Constraint("Vertical", 4))
sketch3.addConstraint(Sketcher.Constraint("Horizontal", 5))
sketch3.addConstraint(Sketcher.Constraint("Vertical", 6))
sketch3.addConstraint(Sketcher.Constraint("Horizontal", 7))
sketch3.addConstraint(Sketcher.Constraint("Horizontal", 1, 2, 4, 2))
sketch3.addConstraint(Sketcher.Constraint("Horizontal", 3, 2, 6, 2))
sketch3.addConstraint(Sketcher.Constraint("Equal", 3, 5))
sketch3.addConstraint(Sketcher.Constraint("DistanceX", 1, 1, 1, 2, Q("10 mm")))
sketch3.addConstraint(Sketcher.Constraint("DistanceY", 0, 2, 0, 1, Q("3 mm")))
sketch3.addConstraint(Sketcher.Constraint("DistanceX", -1, 1, 0, 2, Q("10 mm")))
sketch3.addConstraint(Sketcher.Constraint("DistanceY", -1, 1, 0, 2, Q("30 mm")))
sketch3.addConstraint(Sketcher.Constraint("DistanceX", -1, 1, 4, 2, Q("83 mm")))
pad2 = doc.addObject("PartDesign::Pad", "Pad001")
body.addObject(pad2)
pad2.Profile = sketch3
pad2.Length = 3
pad2.Reversed = True

# Sketch on XY plane
sketch4 = doc.addObject("Sketcher::SketchObject", "Sketch003")
body.addObject(sketch4)
sketch4.AttachmentSupport = (doc.XY_Plane, [""])
sketch4.MapMode = "FlatFace"
sketch4.AttachmentOffset = App.Placement(Vector(0, 0, 3), App.Rotation())
add_polygon(sketch4, [(84.304087, 4.472316), (84.304087, -13.891555), (96.304087, -13.891555), (96.304087, 4.472316)])  # lines 0-3
sketch4.addConstraint(Sketcher.Constraint("Vertical", 0))
sketch4.addConstraint(Sketcher.Constraint("Horizontal", 1))
sketch4.addConstraint(Sketcher.Constraint("Vertical", 2))
sketch4.addConstraint(Sketcher.Constraint("Horizontal", 3))
sketch4.addConstraint(Sketcher.Constraint("DistanceX", 1, 1, 1, 2, Q("12 mm")))
sketch4.addConstraint(Sketcher.Constraint("DistanceY", 0, 2, 0, 1, Q("18.363871 mm")))
sketch4.addConstraint(Sketcher.Constraint("DistanceX", -1, 1, 0, 2, Q("84.304087 mm")))
sketch4.addConstraint(Sketcher.Constraint("DistanceY", 0, 2, -1, 1, Q("13.891555 mm")))
pocket2 = doc.addObject("PartDesign::Pocket", "Pocket001")
body.addObject(pocket2)
pocket2.Profile = sketch4
pocket2.Length = 3

doc.recompute()
